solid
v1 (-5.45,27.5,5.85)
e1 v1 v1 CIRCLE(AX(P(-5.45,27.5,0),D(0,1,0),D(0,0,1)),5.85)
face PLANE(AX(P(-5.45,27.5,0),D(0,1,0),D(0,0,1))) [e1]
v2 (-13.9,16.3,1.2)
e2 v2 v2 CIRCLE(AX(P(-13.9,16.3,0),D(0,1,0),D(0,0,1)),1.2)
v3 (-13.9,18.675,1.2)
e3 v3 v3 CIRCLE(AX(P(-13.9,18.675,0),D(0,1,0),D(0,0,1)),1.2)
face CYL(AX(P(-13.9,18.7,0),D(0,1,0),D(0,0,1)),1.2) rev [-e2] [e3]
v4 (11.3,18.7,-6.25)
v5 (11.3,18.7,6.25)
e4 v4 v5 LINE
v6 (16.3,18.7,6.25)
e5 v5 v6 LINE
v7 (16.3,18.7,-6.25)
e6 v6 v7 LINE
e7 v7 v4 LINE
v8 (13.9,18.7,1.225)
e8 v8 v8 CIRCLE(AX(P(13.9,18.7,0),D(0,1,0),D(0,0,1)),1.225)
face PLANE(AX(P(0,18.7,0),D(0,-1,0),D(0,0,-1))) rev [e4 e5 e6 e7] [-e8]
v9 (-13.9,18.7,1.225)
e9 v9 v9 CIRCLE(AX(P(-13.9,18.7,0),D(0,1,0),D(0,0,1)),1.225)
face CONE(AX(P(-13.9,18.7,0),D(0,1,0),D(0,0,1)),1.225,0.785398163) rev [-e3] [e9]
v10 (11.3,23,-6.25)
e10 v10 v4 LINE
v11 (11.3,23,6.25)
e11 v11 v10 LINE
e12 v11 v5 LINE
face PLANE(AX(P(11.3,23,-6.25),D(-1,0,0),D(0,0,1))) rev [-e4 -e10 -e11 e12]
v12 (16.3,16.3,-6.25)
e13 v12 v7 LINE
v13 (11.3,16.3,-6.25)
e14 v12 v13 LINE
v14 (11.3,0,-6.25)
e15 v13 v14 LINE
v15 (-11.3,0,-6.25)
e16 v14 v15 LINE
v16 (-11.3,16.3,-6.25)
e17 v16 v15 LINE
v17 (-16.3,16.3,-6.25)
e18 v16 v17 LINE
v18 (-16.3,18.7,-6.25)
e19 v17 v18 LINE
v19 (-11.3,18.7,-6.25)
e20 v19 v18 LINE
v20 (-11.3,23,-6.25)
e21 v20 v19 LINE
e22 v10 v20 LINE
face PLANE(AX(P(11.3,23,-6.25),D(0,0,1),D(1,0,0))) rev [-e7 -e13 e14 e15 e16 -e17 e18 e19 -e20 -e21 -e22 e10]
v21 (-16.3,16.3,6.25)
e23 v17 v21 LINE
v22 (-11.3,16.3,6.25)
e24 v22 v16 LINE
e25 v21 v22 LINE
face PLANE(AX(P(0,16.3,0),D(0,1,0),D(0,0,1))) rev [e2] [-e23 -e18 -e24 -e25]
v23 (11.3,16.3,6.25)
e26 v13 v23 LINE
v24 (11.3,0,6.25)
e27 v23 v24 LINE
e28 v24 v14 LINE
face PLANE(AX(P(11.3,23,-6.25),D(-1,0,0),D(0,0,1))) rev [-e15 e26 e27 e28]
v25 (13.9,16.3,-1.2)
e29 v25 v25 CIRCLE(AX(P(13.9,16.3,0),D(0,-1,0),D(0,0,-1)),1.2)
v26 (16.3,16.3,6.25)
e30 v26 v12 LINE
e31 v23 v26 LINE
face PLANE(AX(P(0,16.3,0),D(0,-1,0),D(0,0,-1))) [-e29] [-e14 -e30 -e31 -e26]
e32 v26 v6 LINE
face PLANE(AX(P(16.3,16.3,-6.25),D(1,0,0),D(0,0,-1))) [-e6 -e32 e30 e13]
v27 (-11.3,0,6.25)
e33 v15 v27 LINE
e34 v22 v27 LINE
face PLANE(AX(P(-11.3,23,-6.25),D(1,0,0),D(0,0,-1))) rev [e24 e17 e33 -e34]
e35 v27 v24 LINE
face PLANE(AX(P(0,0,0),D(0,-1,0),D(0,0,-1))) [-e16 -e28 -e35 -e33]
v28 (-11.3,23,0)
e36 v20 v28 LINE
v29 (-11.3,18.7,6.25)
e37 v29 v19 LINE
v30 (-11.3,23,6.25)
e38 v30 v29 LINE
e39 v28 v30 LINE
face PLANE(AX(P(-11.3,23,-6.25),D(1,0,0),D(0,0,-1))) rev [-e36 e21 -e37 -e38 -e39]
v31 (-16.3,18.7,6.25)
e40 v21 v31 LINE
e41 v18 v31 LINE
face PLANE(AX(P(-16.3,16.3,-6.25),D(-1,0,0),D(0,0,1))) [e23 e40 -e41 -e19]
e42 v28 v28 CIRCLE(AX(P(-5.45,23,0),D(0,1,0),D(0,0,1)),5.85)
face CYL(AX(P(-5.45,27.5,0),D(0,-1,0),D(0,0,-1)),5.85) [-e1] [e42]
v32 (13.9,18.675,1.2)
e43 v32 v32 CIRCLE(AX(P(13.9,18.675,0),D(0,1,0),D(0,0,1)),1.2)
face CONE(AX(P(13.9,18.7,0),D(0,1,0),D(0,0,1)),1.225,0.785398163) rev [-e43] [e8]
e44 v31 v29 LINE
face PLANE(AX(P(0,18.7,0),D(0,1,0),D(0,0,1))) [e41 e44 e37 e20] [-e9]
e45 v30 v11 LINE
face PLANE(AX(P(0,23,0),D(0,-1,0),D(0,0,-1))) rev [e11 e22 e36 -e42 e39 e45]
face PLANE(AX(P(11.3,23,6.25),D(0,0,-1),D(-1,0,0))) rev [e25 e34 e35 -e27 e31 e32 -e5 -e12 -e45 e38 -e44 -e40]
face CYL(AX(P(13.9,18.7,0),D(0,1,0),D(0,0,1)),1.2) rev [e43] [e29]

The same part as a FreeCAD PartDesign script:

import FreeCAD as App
import Part
import Sketcher
Q = App.Units.Quantity

doc = App.newDocument("Part")
body = doc.addObject("PartDesign::Body", "Body")

sketch1 = doc.addObject("Sketcher::SketchObject", "Sketch")
body.addObject(sketch1)
sketch1.AttachmentSupport = (doc.XZ_Plane, [""])
sketch1.MapMode = "FlatFace"
sketch1.addGeometry(Part.LineSegment(App.Vector(-11, -6, 0), App.Vector(-11, 6, 0)), False)
sketch1.addGeometry(Part.LineSegment(App.Vector(-11, 6, 0), App.Vector(11, 6, 0)), False)
sketch1.addGeometry(Part.LineSegment(App.Vector(11, 6, 0), App.Vector(11, -6, 0)), False)
sketch1.addGeometry(Part.LineSegment(App.Vector(11, -6, 0), App.Vector(-11, -6, 0)), False)
sketch1.addConstraint(Sketcher.Constraint("Coincident", 0, 2, 1, 1))
sketch1.addConstraint(Sketcher.Constraint("Coincident", 1, 2, 2, 1))
sketch1.addConstraint(Sketcher.Constraint("Coincident", 2, 2, 3, 1))
sketch1.addConstraint(Sketcher.Constraint("Coincident", 3, 2, 0, 1))
sketch1.addConstraint(Sketcher.Constraint("Vertical", 0))
sketch1.addConstraint(Sketcher.Constraint("Horizontal", 1))
sketch1.addConstraint(Sketcher.Constraint("Vertical", 2))
sketch1.addConstraint(Sketcher.Constraint("Horizontal", 3))
sketch1.addConstraint(Sketcher.Constraint("Symmetric", 0, 2, 2, 2, -1, 1))
sketch1.addConstraint(Sketcher.Constraint("DistanceX", 1, 1, 1, 2, Q("22.6 mm")))
sketch1.addConstraint(Sketcher.Constraint("DistanceY", 0, 1, 0, 2, Q("12.5 mm")))
pad1 = doc.addObject("PartDesign::Pad", "Pad")
body.addObject(pad1)
pad1.Profile = sketch1
pad1.Length = 23
pad1.Reversed = True

sketch2 = doc.addObject("Sketcher::SketchObject", "Sketch001")
body.addObject(sketch2)
sketch2.AttachmentSupport = (doc.XZ_Plane, [""])
sketch2.MapMode = "FlatFace"
sketch2.AttachmentOffset = App.Placement(App.Vector(0, 0, -18.7), App.Rotation())
sketch2.addGeometry(Part.LineSegment(App.Vector(11, -6, 0), App.Vector(11, 6, 0)), False)
sketch2.addGeometry(Part.LineSegment(App.Vector(11, 6, 0), App.Vector(16, 6, 0)), False)
sketch2.addGeometry(Part.LineSegment(App.Vector(16, 6, 0), App.Vector(16, -6, 0)), False)
sketch2.addGeometry(Part.LineSegment(App.Vector(16, -6, 0), App.Vector(11, -6, 0)), False)
sketch2.addGeometry(Part.LineSegment(App.Vector(-16, -6, 0), App.Vector(-16, 6, 0)), False)
sketch2.addGeometry(Part.LineSegment(App.Vector(-16, 6, 0), App.Vector(-11, 6, 0)), False)
sketch2.addGeometry(Part.LineSegment(App.Vector(-11, 6, 0), App.Vector(-11, -6, 0)), False)
sketch2.addGeometry(Part.LineSegment(App.Vector(-11, -6, 0), App.Vector(-16, -6, 0)), False)
sketch2.addConstraint(Sketcher.Constraint("Coincident", 0, 2, 1, 1))
sketch2.addConstraint(Sketcher.Constraint("Coincident", 1, 2, 2, 1))
sketch2.addConstraint(Sketcher.Constraint("Coincident", 2, 2, 3, 1))
sketch2.addConstraint(Sketcher.Constraint("Coincident", 3, 2, 0, 1))
sketch2.addConstraint(Sketcher.Constraint("Coincident", 4, 2, 5, 1))
sketch2.addConstraint(Sketcher.Constraint("Coincident", 5, 2, 6, 1))
sketch2.addConstraint(Sketcher.Constraint("Coincident", 6, 2, 7, 1))
sketch2.addConstraint(Sketcher.Constraint("Coincident", 7, 2, 4, 1))
sketch2.addConstraint(Sketcher.Constraint("Vertical", 0))
sketch2.addConstraint(Sketcher.Constraint("Horizontal", 1))
sketch2.addConstraint(Sketcher.Constraint("Vertical", 2))
sketch2.addConstraint(Sketcher.Constraint("Horizontal", 3))
sketch2.addConstraint(Sketcher.Constraint("Vertical", 4))
sketch2.addConstraint(Sketcher.Constraint("Horizontal", 5))
sketch2.addConstraint(Sketcher.Constraint("Vertical", 6))
sketch2.addConstraint(Sketcher.Constraint("Horizontal", 7))
sketch2.addConstraint(Sketcher.Constraint("Symmetric", 2, 2, 4, 2, -1, 1))
sketch2.addConstraint(Sketcher.Constraint("Symmetric", 0, 2, 6, 2, -1, 1))
sketch2.addConstraint(Sketcher.Constraint("Horizontal", 1, 2, 4, 2))
sketch2.addConstraint(Sketcher.Constraint("DistanceX", 1, 1, 1, 2, Q("5 mm")))
sketch2.addConstraint(Sketcher.Constraint("DistanceY", 0, 1, 0, 2, Q("12.5 mm")))
sketch2.addConstraint(Sketcher.Constraint("DistanceX", -1, 1, 0, 2, Q("11.3 mm")))
pad2 = doc.addObject("PartDesign::Pad", "Pad001")
body.addObject(pad2)
pad2.Profile = sketch2
pad2.Length = 2.4

sketch3 = doc.addObject("Sketcher::SketchObject", "Sketch002")
body.addObject(sketch3)
sketch3.AttachmentSupport = (doc.XZ_Plane, [""])
sketch3.MapMode = "FlatFace"
sketch3.AttachmentOffset = App.Placement(App.Vector(0, 0, -18.7), App.Rotation())
sketch3.addGeometry(Part.Circle(App.Vector(-13.9, 0, 0), App.Vector(0, 0, 1), 1.2), False)
sketch3.addGeometry(Part.Circle(App.Vector(13.9, 0, 0), App.Vector(0, 0, 1), 1.2), False)
sketch3.addConstraint(Sketcher.Constraint("Equal", 0, 1))
sketch3.addConstraint(Sketcher.Constraint("Symmetric", 0, 3, 1, 3, -1, 1))
sketch3.addConstraint(Sketcher.Constraint("PointOnObject", 0, 3, -1))
sketch3.addConstraint(Sketcher.Constraint("Diameter", 0, Q("2.4 mm")))
sketch3.addConstraint(Sketcher.Constraint("DistanceX", 0, 3, -1, 1, Q("13.9 mm")))
doc.recompute()
hole = doc.addObject("PartDesign::Hole", "Hole")
body.addObject(hole)
hole.Profile = sketch3
hole.ThreadType = "None"
hole.Diameter = 2.4
hole.DepthType = "Dimension"
hole.Depth = 21.51
hole.DrillPoint = "Angled"
hole.DrillPointAngle = 118
hole.HoleCutType = "Countersink"
hole.HoleCutDiameter = 2.45
hole.HoleCutCountersinkAngle = 90
hole.Reversed = True

sketch4 = doc.addObject("Sketcher::SketchObject", "Sketch003")
body.addObject(sketch4)
sketch4.AttachmentSupport = (doc.XZ_Plane, [""])
sketch4.MapMode = "FlatFace"
sketch4.AttachmentOffset = App.Placement(App.Vector(0, 0, -23), App.Rotation())
sketch4.addGeometry(Part.Circle(App.Vector(-5, 0, 0), App.Vector(0, 0, 1), 6), False)
sketch4.addConstraint(Sketcher.Constraint("PointOnObject", 0, 3, -1))
sketch4.addConstraint(Sketcher.Constraint("Diameter", 0, Q("11.7 mm")))
sketch4.addConstraint(Sketcher.Constraint("DistanceX", 0, 3, -1, 1, Q("5.45 mm")))
pad3 = doc.addObject("PartDesign::Pad", "Pad002")
body.addObject(pad3)
pad3.Profile = sketch4
pad3.Length = 4.5
pad3.Reversed = True

doc.recompute()
